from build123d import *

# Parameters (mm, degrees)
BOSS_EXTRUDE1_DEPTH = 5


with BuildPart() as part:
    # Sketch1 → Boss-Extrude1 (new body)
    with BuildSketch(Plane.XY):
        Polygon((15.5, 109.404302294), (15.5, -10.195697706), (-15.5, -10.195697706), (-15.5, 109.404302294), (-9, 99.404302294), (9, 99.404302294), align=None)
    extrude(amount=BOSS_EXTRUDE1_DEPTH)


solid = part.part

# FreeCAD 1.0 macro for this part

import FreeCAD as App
import Part
import Sketcher

V = App.Vector


def add_polygon(sketch, points):
    """Adds a closed chain of lines whose ends are joined by coincident constraints."""
    first, n = sketch.GeometryCount, len(points)
    for a, b in zip(points, points[1:] + points[:1]):
        sketch.addGeometry(Part.LineSegment(App.Vector(*a, 0), App.Vector(*b, 0)), False)
    for i in range(n):
        sketch.addConstraint(Sketcher.Constraint("Coincident", first + i, 2, first + (i + 1) % n, 1))

doc = App.newDocument("Part")
body = doc.addObject("PartDesign::Body", "Body")

# Sketch on XY plane
sketch1 = doc.addObject("Sketcher::SketchObject", "Sketch")
body.addObject(sketch1)
sketch1.AttachmentSupport = (doc.XY_Plane, [""])
sketch1.MapMode = "FlatFace"
add_polygon(sketch1, [(16, -10), (16, 109), (9, 99), (-9, 99), (-16, 109), (-16, -10)])  # lines 0-5
sketch1.addConstraint([
    Sketcher.Constraint("Vertical", 0),
    Sketcher.Constraint("Horizontal", 2),
    Sketcher.Constraint("Vertical", 4),
    Sketcher.Constraint("Horizontal", 5),
    Sketcher.Constraint("Symmetric", 0, 2, 3, 2, -2),
    Sketcher.Constraint("Equal", 1, 3),
    Sketcher.Constraint("DistanceX", 2, 2, 2, 1, 18.0),
    Sketcher.Constraint("DistanceX", 5, 1, 5, 2, 31.0),
    Sketcher.Constraint("DistanceY", 0, 1, 0, 2, 119.6),
    Sketcher.Constraint("DistanceY", 1, 2, 0, 2, 10.0),
    Sketcher.Constraint("DistanceY", -1, 1, 0, 2, 109.404302),
])
pad1 = doc.addObject("PartDesign::Pad", "Pad")
body.addObject(pad1)
pad1.Profile = sketch1
pad1.Length = 5

doc.recompute()
